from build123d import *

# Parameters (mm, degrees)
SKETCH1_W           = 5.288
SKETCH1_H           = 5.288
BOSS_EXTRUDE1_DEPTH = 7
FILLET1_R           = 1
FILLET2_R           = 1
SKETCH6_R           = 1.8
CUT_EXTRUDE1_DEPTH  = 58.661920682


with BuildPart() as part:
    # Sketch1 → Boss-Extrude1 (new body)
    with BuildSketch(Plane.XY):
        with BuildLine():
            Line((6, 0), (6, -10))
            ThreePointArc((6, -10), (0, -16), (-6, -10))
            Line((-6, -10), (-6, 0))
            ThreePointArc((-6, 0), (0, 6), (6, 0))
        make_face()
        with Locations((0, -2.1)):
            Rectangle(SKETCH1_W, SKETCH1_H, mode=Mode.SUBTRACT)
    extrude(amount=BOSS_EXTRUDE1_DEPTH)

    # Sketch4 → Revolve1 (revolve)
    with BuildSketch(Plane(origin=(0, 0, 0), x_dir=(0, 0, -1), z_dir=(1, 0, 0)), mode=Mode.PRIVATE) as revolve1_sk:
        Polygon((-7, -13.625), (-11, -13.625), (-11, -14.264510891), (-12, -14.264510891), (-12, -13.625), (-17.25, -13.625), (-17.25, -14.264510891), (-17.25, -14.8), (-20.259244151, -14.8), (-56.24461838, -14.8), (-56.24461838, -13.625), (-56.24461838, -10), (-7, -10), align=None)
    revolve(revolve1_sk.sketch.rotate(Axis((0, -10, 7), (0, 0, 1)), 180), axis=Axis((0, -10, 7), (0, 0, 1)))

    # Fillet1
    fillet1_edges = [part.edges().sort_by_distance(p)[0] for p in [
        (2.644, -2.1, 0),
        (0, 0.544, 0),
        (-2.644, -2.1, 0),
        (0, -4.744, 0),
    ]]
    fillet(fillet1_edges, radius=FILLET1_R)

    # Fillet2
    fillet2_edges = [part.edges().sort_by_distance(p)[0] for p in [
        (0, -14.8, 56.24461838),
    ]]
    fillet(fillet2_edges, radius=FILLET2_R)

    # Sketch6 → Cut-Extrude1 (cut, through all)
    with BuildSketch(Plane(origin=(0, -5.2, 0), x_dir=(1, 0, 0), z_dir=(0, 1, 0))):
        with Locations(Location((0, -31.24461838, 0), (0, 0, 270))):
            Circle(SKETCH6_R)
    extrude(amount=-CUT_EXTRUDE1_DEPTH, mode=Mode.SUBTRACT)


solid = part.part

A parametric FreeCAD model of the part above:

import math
import FreeCAD as App
import Part
import Sketcher

V = App.Vector
Q = App.Units.Quantity


def edges_at(feature, points):
    """Names of the edges that pass closest to the given points."""
    edges = feature.Shape.Edges
    near = lambda p: min(range(len(edges)), key=lambda i: edges[i].distToShape(Part.Vertex(*p))[0])
    return sorted({f"Edge{near(p) + 1}" for p in points})


def add_polygon(sketch, points):
    """Adds a closed chain of lines whose ends are joined by coincident constraints."""
    first, n = sketch.GeometryCount, len(points)
    for a, b in zip(points, points[1:] + points[:1]):
        sketch.addGeometry(Part.LineSegment(App.Vector(*a, 0), App.Vector(*b, 0)), False)
    for i in range(n):
        sketch.addConstraint(Sketcher.Constraint("Coincident", first + i, 2, first + (i + 1) % n, 1))

doc = App.newDocument("Part")
params = doc.addObject("Spreadsheet::Sheet", "Params")
for row, (alias, value) in enumerate([
    ("sketch1_radius", "6 mm"),
    ("sketch1_height", "10 mm"),
    ("pad1_length", "7 mm"),
    ("sketch2_height", "4 mm"),
    ("sketch2_height2", "1 mm"),
    ("sketch2_width", "4.8 mm"),
    ("sketch2_height3", "5.25 mm"),
    ("revolution_angle", "360 deg"),
    ("fillet_radius", "1 mm"),
    ("fillet2_radius", "1 mm"),
    ("sketch3_diameter", "3.6 mm"),
], start=1):
    params.set(f"A{row}", alias)
    params.set(f"B{row}", "=" + value)
    params.setAlias(f"B{row}", alias)

body = doc.addObject("PartDesign::Body", "Body")

# Sketch on XY plane
sketch1 = doc.addObject("Sketcher::SketchObject", "Sketch")
body.addObject(sketch1)
sketch1.AttachmentSupport = (doc.XY_Plane, [""])
sketch1.MapMode = "FlatFace"
sketch1.addGeometry(Part.LineSegment(V(6, -10, 0), V(6, 0, 0)), False)  # 0
sketch1.addGeometry(Part.ArcOfCircle(Part.Circle(V(0, 0, 0), V(0, 0, 1), 6), math.radians(0), math.radians(180)), False)  # 1
sketch1.addGeometry(Part.LineSegment(V(-6, 0, 0), V(-6, -10, 0)), False)  # 2
sketch1.addGeometry(Part.ArcOfCircle(Part.Circle(V(0, -10, 0), V(0, 0, 1), 6), math.radians(180), math.radians(360)), False)  # 3
add_polygon(sketch1, [(-2.644, -4.744), (-2.644, 0.544), (2.644, 0.544), (2.644, -4.744)])  # lines 4-7
sketch1.addConstraint([
    Sketcher.Constraint("Tangent", 0, 2, 1, 1),
    Sketcher.Constraint("Tangent", 1, 2, 2, 1),
    Sketcher.Constraint("Tangent", 2, 2, 3, 1),
    Sketcher.Constraint("Tangent", 3, 2, 0, 1),
    Sketcher.Constraint("Vertical", 0),
    Sketcher.Constraint("Vertical", 2),
    Sketcher.Constraint("Vertical", 4),
    Sketcher.Constraint("Horizontal", 5),
    Sketcher.Constraint("Vertical", 6),
    Sketcher.Constraint("Horizontal", 7),
    Sketcher.Constraint("Coincident", 1, 3, -1, 1),
    Sketcher.Constraint("Equal", 7, 4),
    Sketcher.Constraint("Radius", 1, Q("6 mm")),
    Sketcher.Constraint("DistanceY", 0, 1, 0, 2, Q("10 mm")),
    Sketcher.Constraint("DistanceX", 5, 1, 5, 2, Q("5.288 mm")),
    Sketcher.Constraint("DistanceX", 4, 2, -1, 1, Q("2.644 mm")),
    Sketcher.Constraint("DistanceY", -1, 1, 4, 2, Q("0.544 mm")),
])
sketch1.setExpression("Constraints[16]", "Params.sketch1_radius")
sketch1.setExpression("Constraints[17]", "Params.sketch1_height")
pad1 = doc.addObject("PartDesign::Pad", "Pad")
body.addObject(pad1)
pad1.Profile = sketch1
pad1.setExpression("Length", "Params.pad1_length")

# Sketch on YZ plane
sketch2 = doc.addObject("Sketcher::SketchObject", "Sketch001")
body.addObject(sketch2)
sketch2.AttachmentSupport = (doc.YZ_Plane, [""])
sketch2.MapMode = "FlatFace"
add_polygon(sketch2, [(-13.625, 11), (-13.625, 7), (-10, 7), (-10, 56.244618), (-14.8, 56.244618), (-14.8, 17.25), (-13.625, 17.25), (-13.625, 12), (-14.264511, 12), (-14.264511, 11)])  # lines 0-9
sketch2.addGeometry(Part.LineSegment(V(-10, 7, 0), V(-10, 56.244618, 0)), True)  # axis
sketch2.addConstraint([
    Sketcher.Constraint("Vertical", 0),
    Sketcher.Constraint("Horizontal", 1),
    Sketcher.Constraint("Vertical", 2),
    Sketcher.Constraint("Horizontal", 3),
    Sketcher.Constraint("Vertical", 4),
    Sketcher.Constraint("Horizontal", 5),
    Sketcher.Constraint("Vertical", 6),
    Sketcher.Constraint("Horizontal", 7),
    Sketcher.Constraint("Vertical", 8),
    Sketcher.Constraint("Horizontal", 9),
    Sketcher.Constraint("Vertical", 10),
    Sketcher.Constraint("Coincident", 10, 1, 1, 2),
    Sketcher.Constraint("Horizontal", 3, 2, 10, 2),
    Sketcher.Constraint("Vertical", 0, 2, 5, 2),
    Sketcher.Constraint("DistanceY", 0, 2, 0, 1, Q("4 mm")),
    Sketcher.Constraint("DistanceY", 8, 2, 8, 1, Q("1 mm")),
    Sketcher.Constraint("DistanceX", 3, 2, 3, 1, Q("4.8 mm")),
    Sketcher.Constraint("DistanceY", -1, 1, 0, 2, Q("7 mm")),
    Sketcher.Constraint("DistanceX", 1, 2, -1, 1, Q("10 mm")),
    Sketcher.Constraint("DistanceY", 6, 2, 6, 1, Q("5.25 mm")),
    Sketcher.Constraint("DistanceX", 1, 1, 1, 2, Q("3.625 mm")),
    Sketcher.Constraint("DistanceX", 7, 2, 7, 1, Q("0.639511 mm")),
    Sketcher.Constraint("DistanceY", 2, 1, 2, 2, Q("49.244618 mm")),
])
sketch2.setExpression("Constraints[24]", "Params.sketch2_height")
sketch2.setExpression("Constraints[25]", "Params.sketch2_height2")
sketch2.setExpression("Constraints[26]", "Params.sketch2_width")
sketch2.setExpression("Constraints[29]", "Params.sketch2_height3")
revolution = doc.addObject("PartDesign::Revolution", "Revolution")
body.addObject(revolution)
revolution.Profile = sketch2
revolution.ReferenceAxis = (sketch2, ["Axis0"])
revolution.setExpression("Angle", "Params.revolution_angle")
doc.recompute()

fillet = doc.addObject("PartDesign::Fillet", "Fillet")
body.addObject(fillet)
fillet.Base = (revolution, edges_at(revolution, [
    (2.644, -2.1, 0),
    (0, 0.544, 0),
    (-2.644, -2.1, 0),
    (0, -4.744, 0),
]))
fillet.setExpression("Radius", "Params.fillet_radius")
doc.recompute()

fillet2 = doc.addObject("PartDesign::Fillet", "Fillet001")
body.addObject(fillet2)
fillet2.Base = (fillet, edges_at(fillet, [(0, -14.8, 56.245)]))
fillet2.setExpression("Radius", "Params.fillet2_radius")

# Sketch on XZ plane
sketch3 = doc.addObject("Sketcher::SketchObject", "Sketch002")
body.addObject(sketch3)
sketch3.AttachmentSupport = (doc.XZ_Plane, [""])
sketch3.MapMode = "FlatFace"
sketch3.AttachmentOffset = App.Placement(V(0, 0, 5.2), App.Rotation())
sketch3.addGeometry(Part.Circle(V(0, 31.244618, 0), V(0, 0, 1), 1.8), False)
sketch3.addConstraint([
    Sketcher.Constraint("PointOnObject", 0, 3, -2),
    Sketcher.Constraint("Diameter", 0, Q("3.6 mm")),
    Sketcher.Constraint("DistanceY", -1, 1, 0, 3, Q("31.244618 mm")),
])
sketch3.setExpression("Constraints[1]", "Params.sketch3_diameter")
pocket1 = doc.addObject("PartDesign::Pocket", "Pocket")
body.addObject(pocket1)
pocket1.Profile = sketch3
pocket1.Type = "ThroughAll"
pocket1.Reversed = True

doc.recompute()
